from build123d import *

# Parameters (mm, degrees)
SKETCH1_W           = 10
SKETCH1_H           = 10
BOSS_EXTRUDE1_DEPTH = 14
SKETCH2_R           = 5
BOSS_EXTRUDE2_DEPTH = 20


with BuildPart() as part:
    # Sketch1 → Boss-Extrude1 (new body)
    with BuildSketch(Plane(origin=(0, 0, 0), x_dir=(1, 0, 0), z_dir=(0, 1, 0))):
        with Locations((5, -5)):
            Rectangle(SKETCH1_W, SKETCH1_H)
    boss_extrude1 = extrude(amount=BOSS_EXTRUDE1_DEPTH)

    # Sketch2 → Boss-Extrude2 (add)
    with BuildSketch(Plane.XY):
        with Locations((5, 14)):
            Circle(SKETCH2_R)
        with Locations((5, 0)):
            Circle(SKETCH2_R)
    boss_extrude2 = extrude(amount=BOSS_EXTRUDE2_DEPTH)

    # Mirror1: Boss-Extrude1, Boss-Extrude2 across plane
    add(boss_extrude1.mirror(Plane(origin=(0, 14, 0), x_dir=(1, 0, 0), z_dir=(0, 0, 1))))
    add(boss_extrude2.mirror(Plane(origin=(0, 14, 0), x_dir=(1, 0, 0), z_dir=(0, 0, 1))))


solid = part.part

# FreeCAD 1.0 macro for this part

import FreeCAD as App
import Part
import Sketcher
from FreeCAD import Vector
Q = App.Units.Quantity


def add_polygon(sketch, points):
    """Adds a closed chain of lines whose ends are joined by coincident constraints."""
    first, n = sketch.GeometryCount, len(points)
    for a, b in zip(points, points[1:] + points[:1]):
        sketch.addGeometry(Part.LineSegment(App.Vector(*a, 0), App.Vector(*b, 0)), False)
    for i in range(n):
        sketch.addConstraint(Sketcher.Constraint("Coincident", first + i, 2, first + (i + 1) % n, 1))

doc = App.newDocument("Part")
body = doc.addObject("PartDesign::Body", "Body")

# Sketch on XZ plane
sketch1 = body.newObject("Sketcher::SketchObject", "Sketch")
sketch1.AttachmentSupport = (doc.getObject("XZ_Plane"), [""])
sketch1.MapMode = "FlatFace"
add_polygon(sketch1, [(0, 0), (0, 10), (10, 10), (10, 0)])  # lines 0-3
sketch1.addConstraint([
    Sketcher.Constraint("Vertical", 0),
    Sketcher.Constraint("Horizontal", 1),
    Sketcher.Constraint("Vertical", 2),
    Sketcher.Constraint("Horizontal", 3),
    Sketcher.Constraint("Coincident", 3, 2, -1, 1),
    Sketcher.Constraint("Equal", 3, 0),
    Sketcher.Constraint("DistanceX", 1, 1, 1, 2, Q("10 mm")),
])
pad1 = body.newObject("PartDesign::Pad", "Pad")
pad1.Profile = sketch1
pad1.Length = 14
pad1.Reversed = True

# Sketch on XY plane
sketch2 = body.newObject("Sketcher::SketchObject", "Sketch001")
sketch2.AttachmentSupport = (doc.getObject("XY_Plane"), [""])
sketch2.MapMode = "FlatFace"
sketch2.addGeometry([
    Part.Circle(Vector(5, 14, 0), Vector(0, 0, 1), 5),
    Part.Circle(Vector(5, 0, 0), Vector(0, 0, 1), 5),
], False)
sketch2.addConstraint([
    Sketcher.Constraint("Equal", 0, 1),
    Sketcher.Constraint("PointOnObject", 1, 3, -1),
    Sketcher.Constraint("Vertical", 0, 3, 1, 3),
    Sketcher.Constraint("Diameter", 0, Q("10 mm")),
    Sketcher.Constraint("DistanceX", -1, 1, 0, 3, Q("5 mm")),
    Sketcher.Constraint("DistanceY", -1, 1, 0, 3, Q("14 mm")),
])
pad2 = body.newObject("PartDesign::Pad", "Pad001")
pad2.Profile = sketch2
pad2.Length = 20
doc.recompute()

mirrored = body.newObject("PartDesign::Mirrored", "Mirrored")
mirrored.Originals = [pad1, pad2]
mirrored.MirrorPlane = (doc.getObject("XY_Plane"), [""])
body.Tip = mirrored

doc.recompute()
